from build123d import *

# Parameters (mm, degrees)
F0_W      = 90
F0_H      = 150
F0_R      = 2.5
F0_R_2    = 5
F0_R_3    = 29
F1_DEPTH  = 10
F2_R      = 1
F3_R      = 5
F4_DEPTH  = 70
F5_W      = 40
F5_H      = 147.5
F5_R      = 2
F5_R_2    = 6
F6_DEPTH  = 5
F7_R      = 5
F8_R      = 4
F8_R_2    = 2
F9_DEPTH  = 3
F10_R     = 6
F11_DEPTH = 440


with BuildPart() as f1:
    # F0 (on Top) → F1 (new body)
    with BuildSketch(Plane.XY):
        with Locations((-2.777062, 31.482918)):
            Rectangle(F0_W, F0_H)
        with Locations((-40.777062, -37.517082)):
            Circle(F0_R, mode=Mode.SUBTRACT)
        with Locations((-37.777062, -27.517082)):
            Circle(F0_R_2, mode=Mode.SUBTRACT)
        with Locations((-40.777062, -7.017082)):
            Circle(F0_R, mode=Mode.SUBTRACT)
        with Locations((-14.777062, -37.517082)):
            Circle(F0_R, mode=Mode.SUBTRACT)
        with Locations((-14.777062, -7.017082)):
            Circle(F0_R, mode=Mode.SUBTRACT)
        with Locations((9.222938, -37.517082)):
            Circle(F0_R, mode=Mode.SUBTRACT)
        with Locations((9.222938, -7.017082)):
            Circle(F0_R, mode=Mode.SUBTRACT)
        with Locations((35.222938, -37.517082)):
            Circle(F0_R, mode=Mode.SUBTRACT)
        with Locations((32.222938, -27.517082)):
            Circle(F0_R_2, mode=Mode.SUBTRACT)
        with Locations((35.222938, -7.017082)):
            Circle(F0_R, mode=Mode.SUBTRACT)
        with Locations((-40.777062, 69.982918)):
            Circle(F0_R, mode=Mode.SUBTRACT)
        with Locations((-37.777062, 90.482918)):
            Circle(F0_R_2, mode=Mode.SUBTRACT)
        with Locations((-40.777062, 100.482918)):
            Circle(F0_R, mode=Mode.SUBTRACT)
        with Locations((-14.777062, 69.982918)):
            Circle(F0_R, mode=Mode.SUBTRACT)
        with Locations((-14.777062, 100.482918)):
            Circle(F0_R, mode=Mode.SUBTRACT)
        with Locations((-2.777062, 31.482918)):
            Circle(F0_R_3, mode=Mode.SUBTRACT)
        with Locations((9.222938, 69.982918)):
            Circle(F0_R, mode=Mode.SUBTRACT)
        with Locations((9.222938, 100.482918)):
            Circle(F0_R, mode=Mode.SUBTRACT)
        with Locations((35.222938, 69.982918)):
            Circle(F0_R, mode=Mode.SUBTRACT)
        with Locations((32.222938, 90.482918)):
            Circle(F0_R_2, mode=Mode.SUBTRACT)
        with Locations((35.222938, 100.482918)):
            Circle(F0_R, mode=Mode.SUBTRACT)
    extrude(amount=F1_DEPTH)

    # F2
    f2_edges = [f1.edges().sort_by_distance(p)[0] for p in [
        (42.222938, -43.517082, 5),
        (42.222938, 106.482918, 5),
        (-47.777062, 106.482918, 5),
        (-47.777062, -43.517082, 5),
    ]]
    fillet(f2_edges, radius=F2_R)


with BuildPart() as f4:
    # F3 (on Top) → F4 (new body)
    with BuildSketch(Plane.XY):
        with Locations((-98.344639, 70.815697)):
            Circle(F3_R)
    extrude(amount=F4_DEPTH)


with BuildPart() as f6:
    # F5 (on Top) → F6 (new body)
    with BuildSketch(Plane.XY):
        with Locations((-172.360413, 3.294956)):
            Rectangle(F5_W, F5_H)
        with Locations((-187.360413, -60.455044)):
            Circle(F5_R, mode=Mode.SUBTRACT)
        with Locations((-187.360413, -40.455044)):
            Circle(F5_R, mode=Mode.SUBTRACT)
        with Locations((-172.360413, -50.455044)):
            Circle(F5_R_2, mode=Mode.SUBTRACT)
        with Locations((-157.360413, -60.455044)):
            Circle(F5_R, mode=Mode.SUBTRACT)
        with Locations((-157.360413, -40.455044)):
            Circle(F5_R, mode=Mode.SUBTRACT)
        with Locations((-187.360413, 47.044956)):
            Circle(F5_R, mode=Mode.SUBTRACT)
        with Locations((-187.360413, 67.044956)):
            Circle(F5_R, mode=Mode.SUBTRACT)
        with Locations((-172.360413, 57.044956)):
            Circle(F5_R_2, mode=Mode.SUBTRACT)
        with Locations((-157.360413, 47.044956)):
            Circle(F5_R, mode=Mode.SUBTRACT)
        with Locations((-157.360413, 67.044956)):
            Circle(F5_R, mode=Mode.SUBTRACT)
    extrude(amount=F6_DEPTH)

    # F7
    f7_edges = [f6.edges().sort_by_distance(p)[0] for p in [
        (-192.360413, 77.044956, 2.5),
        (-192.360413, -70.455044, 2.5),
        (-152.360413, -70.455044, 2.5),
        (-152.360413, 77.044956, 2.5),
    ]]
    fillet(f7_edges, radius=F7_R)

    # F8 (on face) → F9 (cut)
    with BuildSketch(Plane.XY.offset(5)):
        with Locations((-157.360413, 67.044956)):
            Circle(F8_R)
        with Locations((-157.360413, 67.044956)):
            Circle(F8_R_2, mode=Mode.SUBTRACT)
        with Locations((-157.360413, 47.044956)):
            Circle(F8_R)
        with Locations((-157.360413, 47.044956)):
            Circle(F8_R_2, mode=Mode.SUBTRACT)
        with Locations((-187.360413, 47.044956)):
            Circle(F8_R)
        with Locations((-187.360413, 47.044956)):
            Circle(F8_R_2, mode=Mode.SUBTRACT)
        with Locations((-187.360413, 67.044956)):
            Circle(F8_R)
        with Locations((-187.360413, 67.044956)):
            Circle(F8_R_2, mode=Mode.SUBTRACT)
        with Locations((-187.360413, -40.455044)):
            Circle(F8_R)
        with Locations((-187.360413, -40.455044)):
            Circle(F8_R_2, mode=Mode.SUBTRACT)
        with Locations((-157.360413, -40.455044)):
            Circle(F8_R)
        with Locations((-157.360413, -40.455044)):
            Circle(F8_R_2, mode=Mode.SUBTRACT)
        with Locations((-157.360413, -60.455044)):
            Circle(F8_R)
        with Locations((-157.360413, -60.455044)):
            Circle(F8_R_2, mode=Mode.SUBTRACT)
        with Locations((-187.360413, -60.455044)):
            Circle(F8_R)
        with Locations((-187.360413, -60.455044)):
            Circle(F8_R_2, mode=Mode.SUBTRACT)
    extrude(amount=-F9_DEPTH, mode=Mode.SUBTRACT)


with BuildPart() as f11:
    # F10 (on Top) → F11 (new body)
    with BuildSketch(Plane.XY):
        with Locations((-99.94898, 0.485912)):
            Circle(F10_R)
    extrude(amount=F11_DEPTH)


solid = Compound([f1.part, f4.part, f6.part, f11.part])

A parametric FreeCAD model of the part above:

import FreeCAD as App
import Part
import Sketcher

V = App.Vector
Q = App.Units.Quantity


def edges_at(feature, points):
    """Names of the edges that pass closest to the given points."""
    edges = feature.Shape.Edges
    near = lambda p: min(range(len(edges)), key=lambda i: edges[i].distToShape(Part.Vertex(*p))[0])
    return sorted({f"Edge{near(p) + 1}" for p in points})


def add_polygon(sketch, points):
    """Adds a closed chain of lines whose ends are joined by coincident constraints."""
    first, n = sketch.GeometryCount, len(points)
    for a, b in zip(points, points[1:] + points[:1]):
        sketch.addGeometry(Part.LineSegment(App.Vector(*a, 0), App.Vector(*b, 0)), False)
    for i in range(n):
        sketch.addConstraint(Sketcher.Constraint("Coincident", first + i, 2, first + (i + 1) % n, 1))

doc = App.newDocument("Part")
params = doc.addObject("Spreadsheet::Sheet", "Params")
for row, (alias, value) in enumerate([
    ("sketch1_diameter", "5 mm"),
    ("sketch1_diameter2", "10 mm"),
    ("sketch1_diameter3", "58 mm"),
    ("sketch1_width", "90 mm"),
    ("sketch1_height", "150 mm"),
    ("pad1_length", "10 mm"),
    ("fillet_radius", "1 mm"),
    ("sketch2_diameter", "10 mm"),
    ("pad2_length", "70 mm"),
    ("sketch3_diameter", "4 mm"),
    ("sketch3_diameter2", "12 mm"),
    ("sketch3_width", "40 mm"),
    ("sketch3_height", "147.5 mm"),
    ("pad3_length", "5 mm"),
    ("fillet2_radius", "5 mm"),
    ("sketch4_diameter", "8 mm"),
    ("sketch4_diameter2", "4 mm"),
    ("pocket1_length", "3 mm"),
    ("sketch5_diameter", "12 mm"),
    ("pad4_length", "440 mm"),
], start=1):
    params.set(f"A{row}", alias)
    params.set(f"B{row}", "=" + value)
    params.setAlias(f"B{row}", alias)

body = doc.addObject("PartDesign::Body", "Body")

# Sketch on XY plane
sketch1 = body.newObject("Sketcher::SketchObject", "Sketch")
sketch1.AttachmentSupport = (doc.getObject("XY_Plane"), [""])
sketch1.MapMode = "FlatFace"
add_polygon(sketch1, [(-47.777062, 106.482918), (-47.777062, -43.517082), (42.222938, -43.517082), (42.222938, 106.482918)])  # lines 0-3
sketch1.addGeometry(Part.Circle(V(-40.777062, -37.517082, 0), V(0, 0, 1), 2.5), False)  # 4
sketch1.addGeometry(Part.Circle(V(-37.777062, -27.517082, 0), V(0, 0, 1), 5), False)  # 5
sketch1.addGeometry(Part.Circle(V(-40.777062, -7.017082, 0), V(0, 0, 1), 2.5), False)  # 6
sketch1.addGeometry(Part.Circle(V(-14.777062, -37.517082, 0), V(0, 0, 1), 2.5), False)  # 7
sketch1.addGeometry(Part.Circle(V(-14.777062, -7.017082, 0), V(0, 0, 1), 2.5), False)  # 8
sketch1.addGeometry(Part.Circle(V(9.222938, -37.517082, 0), V(0, 0, 1), 2.5), False)  # 9
sketch1.addGeometry(Part.Circle(V(9.222938, -7.017082, 0), V(0, 0, 1), 2.5), False)  # 10
sketch1.addGeometry(Part.Circle(V(35.222938, -37.517082, 0), V(0, 0, 1), 2.5), False)  # 11
sketch1.addGeometry(Part.Circle(V(32.222938, -27.517082, 0), V(0, 0, 1), 5), False)  # 12
sketch1.addGeometry(Part.Circle(V(35.222938, -7.017082, 0), V(0, 0, 1), 2.5), False)  # 13
sketch1.addGeometry(Part.Circle(V(-40.777062, 69.982918, 0), V(0, 0, 1), 2.5), False)  # 14
sketch1.addGeometry(Part.Circle(V(-37.777062, 90.482918, 0), V(0, 0, 1), 5), False)  # 15
sketch1.addGeometry(Part.Circle(V(-40.777062, 100.482918, 0), V(0, 0, 1), 2.5), False)  # 16
sketch1.addGeometry(Part.Circle(V(-14.777062, 69.982918, 0), V(0, 0, 1), 2.5), False)  # 17
sketch1.addGeometry(Part.Circle(V(-14.777062, 100.482918, 0), V(0, 0, 1), 2.5), False)  # 18
sketch1.addGeometry(Part.Circle(V(-2.777062, 31.482918, 0), V(0, 0, 1), 29), False)  # 19
sketch1.addGeometry(Part.Circle(V(9.222938, 69.982918, 0), V(0, 0, 1), 2.5), False)  # 20
sketch1.addGeometry(Part.Circle(V(9.222938, 100.482918, 0), V(0, 0, 1), 2.5), False)  # 21
sketch1.addGeometry(Part.Circle(V(35.222938, 69.982918, 0), V(0, 0, 1), 2.5), False)  # 22
sketch1.addGeometry(Part.Circle(V(32.222938, 90.482918, 0), V(0, 0, 1), 5), False)  # 23
sketch1.addGeometry(Part.Circle(V(35.222938, 100.482918, 0), V(0, 0, 1), 2.5), False)  # 24
sketch1.addConstraint([
    Sketcher.Constraint("Vertical", 0),
    Sketcher.Constraint("Horizontal", 1),
    Sketcher.Constraint("Vertical", 2),
    Sketcher.Constraint("Horizontal", 3),
    Sketcher.Constraint("Equal", 4, 6),
    Sketcher.Constraint("Equal", 6, 7),
    Sketcher.Constraint("Equal", 7, 8),
    Sketcher.Constraint("Equal", 8, 9),
    Sketcher.Constraint("Equal", 9, 10),
    Sketcher.Constraint("Equal", 10, 11),
    Sketcher.Constraint("Equal", 5, 12),
    Sketcher.Constraint("Equal", 11, 13),
    Sketcher.Constraint("Equal", 13, 14),
    Sketcher.Constraint("Equal", 12, 15),
    Sketcher.Constraint("Equal", 14, 16),
    Sketcher.Constraint("Equal", 16, 17),
    Sketcher.Constraint("Equal", 17, 18),
    Sketcher.Constraint("Equal", 18, 20),
    Sketcher.Constraint("Equal", 20, 21),
    Sketcher.Constraint("Equal", 21, 22),
    Sketcher.Constraint("Equal", 15, 23),
    Sketcher.Constraint("Equal", 22, 24),
    Sketcher.Constraint("Horizontal", 4, 3, 7, 3),
    Sketcher.Constraint("Horizontal", 6, 3, 8, 3),
    Sketcher.Constraint("Horizontal", 7, 3, 9, 3),
    Sketcher.Constraint("Horizontal", 8, 3, 10, 3),
    Sketcher.Constraint("Horizontal", 9, 3, 11, 3),
    Sketcher.Constraint("Horizontal", 5, 3, 12, 3),
    Sketcher.Constraint("Horizontal", 10, 3, 13, 3),
    Sketcher.Constraint("Horizontal", 14, 3, 17, 3),
    Sketcher.Constraint("Horizontal", 16, 3, 18, 3),
    Sketcher.Constraint("Horizontal", 17, 3, 20, 3),
    Sketcher.Constraint("Horizontal", 18, 3, 21, 3),
    Sketcher.Constraint("Horizontal", 20, 3, 22, 3),
    Sketcher.Constraint("Horizontal", 15, 3, 23, 3),
    Sketcher.Constraint("Horizontal", 21, 3, 24, 3),
    Sketcher.Constraint("Vertical", 4, 3, 6, 3),
    Sketcher.Constraint("Vertical", 7, 3, 8, 3),
    Sketcher.Constraint("Vertical", 9, 3, 10, 3),
    Sketcher.Constraint("Vertical", 11, 3, 13, 3),
    Sketcher.Constraint("Vertical", 6, 3, 14, 3),
    Sketcher.Constraint("Vertical", 5, 3, 15, 3),
    Sketcher.Constraint("Vertical", 14, 3, 16, 3),
    Sketcher.Constraint("Vertical", 8, 3, 17, 3),
    Sketcher.Constraint("Vertical", 17, 3, 18, 3),
    Sketcher.Constraint("Vertical", 10, 3, 20, 3),
    Sketcher.Constraint("Vertical", 20, 3, 21, 3),
    Sketcher.Constraint("Vertical", 13, 3, 22, 3),
    Sketcher.Constraint("Vertical", 12, 3, 23, 3),
    Sketcher.Constraint("Vertical", 22, 3, 24, 3),
    Sketcher.Constraint("Diameter", 4, Q("5 mm")),
    Sketcher.Constraint("Diameter", 5, Q("10 mm")),
    Sketcher.Constraint("Diameter", 19, Q("58 mm")),
    Sketcher.Constraint("DistanceX", 1, 1, 1, 2, Q("90 mm")),
    Sketcher.Constraint("DistanceY", 0, 2, 0, 1, Q("150 mm")),
    Sketcher.Constraint("DistanceX", 4, 3, 5, 3, Q("3 mm")),
    Sketcher.Constraint("DistanceY", 4, 3, 5, 3, Q("10 mm")),
    Sketcher.Constraint("DistanceX", 5, 3, 7, 3, Q("23 mm")),
    Sketcher.Constraint("DistanceX", 7, 3, 9, 3, Q("24 mm")),
    Sketcher.Constraint("DistanceX", 9, 3, 11, 3, Q("26 mm")),
    Sketcher.Constraint("DistanceX", 12, 3, 11, 3, Q("3 mm")),
    Sketcher.Constraint("DistanceY", 6, 3, 14, 3, Q("77 mm")),
    Sketcher.Constraint("DistanceY", 5, 3, 15, 3, Q("118 mm")),
    Sketcher.Constraint("DistanceY", 15, 3, 16, 3, Q("10 mm")),
    Sketcher.Constraint("DistanceX", 8, 3, 19, 3, Q("12 mm")),
    Sketcher.Constraint("DistanceX", 0, 2, 4, 3, Q("7 mm")),
    Sketcher.Constraint("DistanceY", 0, 2, 4, 3, Q("6 mm")),
    Sketcher.Constraint("DistanceY", 5, 3, 6, 3, Q("20.5 mm")),
    Sketcher.Constraint("DistanceY", 8, 3, 19, 3, Q("38.5 mm")),
    Sketcher.Constraint("DistanceY", 5, 3, -1, 1, Q("27.517082 mm")),
    Sketcher.Constraint("DistanceX", 19, 3, -1, 1, Q("2.777062 mm")),
])
sketch1.setExpression("Constraints[54]", "Params.sketch1_diameter")
sketch1.setExpression("Constraints[55]", "Params.sketch1_diameter2")
sketch1.setExpression("Constraints[56]", "Params.sketch1_diameter3")
sketch1.setExpression("Constraints[57]", "Params.sketch1_width")
sketch1.setExpression("Constraints[58]", "Params.sketch1_height")
pad1 = body.newObject("PartDesign::Pad", "Pad")
pad1.Profile = sketch1
pad1.setExpression("Length", "Params.pad1_length")
doc.recompute()

fillet = body.newObject("PartDesign::Fillet", "Fillet")
fillet.Base = (pad1, edges_at(pad1, [
    (42.223, -43.517, 5),
    (42.223, 106.483, 5),
    (-47.777, 106.483, 5),
    (-47.777, -43.517, 5),
]))
fillet.setExpression("Radius", "Params.fillet_radius")
body2 = doc.addObject("PartDesign::Body", "Body001")

# Sketch on XY plane
sketch2 = body2.newObject("Sketcher::SketchObject", "Sketch001")
sketch2.AttachmentSupport = (doc.getObject("XY_Plane001"), [""])
sketch2.MapMode = "FlatFace"
sketch2.addGeometry(Part.Circle(V(-98.344639, 70.815697, 0), V(0, 0, 1), 5), False)
sketch2.addConstraint([
    Sketcher.Constraint("Diameter", 0, Q("10 mm")),
    Sketcher.Constraint("DistanceX", 0, 3, -1, 1, Q("98.344639 mm")),
    Sketcher.Constraint("DistanceY", -1, 1, 0, 3, Q("70.815697 mm")),
])
sketch2.setExpression("Constraints[0]", "Params.sketch2_diameter")
pad2 = body2.newObject("PartDesign::Pad", "Pad001")
pad2.Profile = sketch2
pad2.setExpression("Length", "Params.pad2_length")
body3 = doc.addObject("PartDesign::Body", "Body002")

# Sketch on XY plane
sketch3 = body3.newObject("Sketcher::SketchObject", "Sketch002")
sketch3.AttachmentSupport = (doc.getObject("XY_Plane002"), [""])
sketch3.MapMode = "FlatFace"
add_polygon(sketch3, [(-192.360413, 77.044956), (-192.360413, -70.455044), (-152.360413, -70.455044), (-152.360413, 77.044956)])  # lines 0-3
sketch3.addGeometry(Part.Circle(V(-187.360413, -60.455044, 0), V(0, 0, 1), 2), False)  # 4
sketch3.addGeometry(Part.Circle(V(-187.360413, -40.455044, 0), V(0, 0, 1), 2), False)  # 5
sketch3.addGeometry(Part.Circle(V(-172.360413, -50.455044, 0), V(0, 0, 1), 6), False)  # 6
sketch3.addGeometry(Part.Circle(V(-157.360413, -60.455044, 0), V(0, 0, 1), 2), False)  # 7
sketch3.addGeometry(Part.Circle(V(-157.360413, -40.455044, 0), V(0, 0, 1), 2), False)  # 8
sketch3.addGeometry(Part.Circle(V(-187.360413, 47.044956, 0), V(0, 0, 1), 2), False)  # 9
sketch3.addGeometry(Part.Circle(V(-187.360413, 67.044956, 0), V(0, 0, 1), 2), False)  # 10
sketch3.addGeometry(Part.Circle(V(-172.360413, 57.044956, 0), V(0, 0, 1), 6), False)  # 11
sketch3.addGeometry(Part.Circle(V(-157.360413, 47.044956, 0), V(0, 0, 1), 2), False)  # 12
sketch3.addGeometry(Part.Circle(V(-157.360413, 67.044956, 0), V(0, 0, 1), 2), False)  # 13
sketch3.addConstraint([
    Sketcher.Constraint("Vertical", 0),
    Sketcher.Constraint("Horizontal", 1),
    Sketcher.Constraint("Vertical", 2),
    Sketcher.Constraint("Horizontal", 3),
    Sketcher.Constraint("Equal", 4, 5),
    Sketcher.Constraint("Equal", 5, 7),
    Sketcher.Constraint("Equal", 7, 8),
    Sketcher.Constraint("Equal", 8, 9),
    Sketcher.Constraint("Equal", 9, 10),
    Sketcher.Constraint("Equal", 6, 11),
    Sketcher.Constraint("Equal", 10, 12),
    Sketcher.Constraint("Equal", 12, 13),
    Sketcher.Constraint("Horizontal", 4, 3, 7, 3),
    Sketcher.Constraint("Horizontal", 5, 3, 8, 3),
    Sketcher.Constraint("Horizontal", 9, 3, 12, 3),
    Sketcher.Constraint("Horizontal", 10, 3, 13, 3),
    Sketcher.Constraint("Vertical", 4, 3, 5, 3),
    Sketcher.Constraint("Vertical", 7, 3, 8, 3),
    Sketcher.Constraint("Vertical", 5, 3, 9, 3),
    Sketcher.Constraint("Vertical", 9, 3, 10, 3),
    Sketcher.Constraint("Vertical", 6, 3, 11, 3),
    Sketcher.Constraint("Vertical", 8, 3, 12, 3),
    Sketcher.Constraint("Vertical", 12, 3, 13, 3),
    Sketcher.Constraint("Diameter", 4, Q("4 mm")),
    Sketcher.Constraint("Diameter", 6, Q("12 mm")),
    Sketcher.Constraint("DistanceX", 1, 1, 1, 2, Q("40 mm")),
    Sketcher.Constraint("DistanceY", 0, 2, 0, 1, Q("147.5 mm")),
    Sketcher.Constraint("DistanceY", 4, 3, 5, 3, Q("20 mm")),
    Sketcher.Constraint("DistanceX", 4, 3, 6, 3, Q("15 mm")),
    Sketcher.Constraint("DistanceY", 4, 3, 6, 3, Q("10 mm")),
    Sketcher.Constraint("DistanceX", 6, 3, 7, 3, Q("15 mm")),
    Sketcher.Constraint("DistanceY", 9, 3, 10, 3, Q("20 mm")),
    Sketcher.Constraint("DistanceY", 9, 3, 11, 3, Q("10 mm")),
    Sketcher.Constraint("DistanceX", 0, 2, 4, 3, Q("5 mm")),
    Sketcher.Constraint("DistanceY", 0, 2, 4, 3, Q("10 mm")),
    Sketcher.Constraint("DistanceY", 13, 3, 2, 2, Q("10 mm")),
    Sketcher.Constraint("DistanceX", 4, 3, -1, 1, Q("187.360413 mm")),
    Sketcher.Constraint("DistanceY", 4, 3, -1, 1, Q("60.455044 mm")),
])
sketch3.setExpression("Constraints[27]", "Params.sketch3_diameter")
sketch3.setExpression("Constraints[28]", "Params.sketch3_diameter2")
sketch3.setExpression("Constraints[29]", "Params.sketch3_width")
sketch3.setExpression("Constraints[30]", "Params.sketch3_height")
pad3 = body3.newObject("PartDesign::Pad", "Pad002")
pad3.Profile = sketch3
pad3.setExpression("Length", "Params.pad3_length")
doc.recompute()

fillet2 = body3.newObject("PartDesign::Fillet", "Fillet001")
fillet2.Base = (pad3, edges_at(pad3, [
    (-192.36, 77.045, 2.5),
    (-192.36, -70.455, 2.5),
    (-152.36, -70.455, 2.5),
    (-152.36, 77.045, 2.5),
]))
fillet2.setExpression("Radius", "Params.fillet2_radius")

# Sketch on XY plane
sketch4 = body3.newObject("Sketcher::SketchObject", "Sketch003")
sketch4.AttachmentSupport = (doc.getObject("XY_Plane002"), [""])
sketch4.MapMode = "FlatFace"
sketch4.AttachmentOffset = App.Placement(V(0, 0, 5), App.Rotation())
sketch4.addGeometry([
    Part.Circle(V(-157.360413, 67.044956, 0), V(0, 0, 1), 4),  # 0
    Part.Circle(V(-157.360413, 67.044956, 0), V(0, 0, 1), 2),  # 1
    Part.Circle(V(-157.360413, 47.044956, 0), V(0, 0, 1), 4),  # 2
    Part.Circle(V(-157.360413, 47.044956, 0), V(0, 0, 1), 2),  # 3
    Part.Circle(V(-187.360413, 47.044956, 0), V(0, 0, 1), 4),  # 4
    Part.Circle(V(-187.360413, 47.044956, 0), V(0, 0, 1), 2),  # 5
    Part.Circle(V(-187.360413, 67.044956, 0), V(0, 0, 1), 4),  # 6
    Part.Circle(V(-187.360413, 67.044956, 0), V(0, 0, 1), 2),  # 7
    Part.Circle(V(-187.360413, -40.455044, 0), V(0, 0, 1), 4),  # 8
    Part.Circle(V(-187.360413, -40.455044, 0), V(0, 0, 1), 2),  # 9
    Part.Circle(V(-157.360413, -40.455044, 0), V(0, 0, 1), 4),  # 10
    Part.Circle(V(-157.360413, -40.455044, 0), V(0, 0, 1), 2),  # 11
    Part.Circle(V(-157.360413, -60.455044, 0), V(0, 0, 1), 4),  # 12
    Part.Circle(V(-157.360413, -60.455044, 0), V(0, 0, 1), 2),  # 13
    Part.Circle(V(-187.360413, -60.455044, 0), V(0, 0, 1), 4),  # 14
    Part.Circle(V(-187.360413, -60.455044, 0), V(0, 0, 1), 2),  # 15
], False)
sketch4.addConstraint([
    Sketcher.Constraint("Coincident", 1, 3, 0, 3),
    Sketcher.Constraint("Coincident", 3, 3, 2, 3),
    Sketcher.Constraint("Coincident", 5, 3, 4, 3),
    Sketcher.Constraint("Coincident", 7, 3, 6, 3),
    Sketcher.Constraint("Coincident", 9, 3, 8, 3),
    Sketcher.Constraint("Coincident", 11, 3, 10, 3),
    Sketcher.Constraint("Coincident", 13, 3, 12, 3),
    Sketcher.Constraint("Coincident", 15, 3, 14, 3),
    Sketcher.Constraint("Equal", 0, 2),
    Sketcher.Constraint("Equal", 1, 3),
    Sketcher.Constraint("Equal", 2, 4),
    Sketcher.Constraint("Equal", 3, 5),
    Sketcher.Constraint("Equal", 4, 6),
    Sketcher.Constraint("Equal", 5, 7),
    Sketcher.Constraint("Equal", 6, 8),
    Sketcher.Constraint("Equal", 7, 9),
    Sketcher.Constraint("Equal", 8, 10),
    Sketcher.Constraint("Equal", 9, 11),
    Sketcher.Constraint("Equal", 10, 12),
    Sketcher.Constraint("Equal", 11, 13),
    Sketcher.Constraint("Equal", 12, 14),
    Sketcher.Constraint("Equal", 13, 15),
    Sketcher.Constraint("Horizontal", 3, 3, 4, 3),
    Sketcher.Constraint("Horizontal", 1, 3, 6, 3),
    Sketcher.Constraint("Horizontal", 9, 3, 10, 3),
    Sketcher.Constraint("Horizontal", 13, 3, 14, 3),
    Sketcher.Constraint("Vertical", 1, 3, 2, 3),
    Sketcher.Constraint("Vertical", 5, 3, 6, 3),
    Sketcher.Constraint("Vertical", 7, 3, 8, 3),
    Sketcher.Constraint("Vertical", 3, 3, 10, 3),
    Sketcher.Constraint("Vertical", 11, 3, 12, 3),
    Sketcher.Constraint("Vertical", 9, 3, 14, 3),
    Sketcher.Constraint("Diameter", 0, Q("8 mm")),
    Sketcher.Constraint("Diameter", 1, Q("4 mm")),
    Sketcher.Constraint("DistanceY", 2, 3, 0, 3, Q("20 mm")),
    Sketcher.Constraint("DistanceX", 4, 3, 2, 3, Q("30 mm")),
    Sketcher.Constraint("DistanceY", 12, 3, 10, 3, Q("20 mm")),
    Sketcher.Constraint("DistanceY", 8, 3, 4, 3, Q("87.5 mm")),
    Sketcher.Constraint("DistanceX", 0, 3, -1, 1, Q("157.360413 mm")),
    Sketcher.Constraint("DistanceY", -1, 1, 0, 3, Q("67.044956 mm")),
])
sketch4.setExpression("Constraints[32]", "Params.sketch4_diameter")
sketch4.setExpression("Constraints[33]", "Params.sketch4_diameter2")
pocket1 = body3.newObject("PartDesign::Pocket", "Pocket")
pocket1.Profile = sketch4
pocket1.setExpression("Length", "Params.pocket1_length")
body4 = doc.addObject("PartDesign::Body", "Body003")

# Sketch on XY plane
sketch5 = body4.newObject("Sketcher::SketchObject", "Sketch004")
sketch5.AttachmentSupport = (doc.getObject("XY_Plane003"), [""])
sketch5.MapMode = "FlatFace"
sketch5.addGeometry(Part.Circle(V(-99.94898, 0.485912, 0), V(0, 0, 1), 6), False)
sketch5.addConstraint([
    Sketcher.Constraint("Diameter", 0, Q("12 mm")),
    Sketcher.Constraint("DistanceX", 0, 3, -1, 1, Q("99.94898 mm")),
    Sketcher.Constraint("DistanceY", -1, 1, 0, 3, Q("0.485912 mm")),
])
sketch5.setExpression("Constraints[0]", "Params.sketch5_diameter")
pad4 = body4.newObject("PartDesign::Pad", "Pad003")
pad4.Profile = sketch5
pad4.setExpression("Length", "Params.pad4_length")

doc.recompute()
